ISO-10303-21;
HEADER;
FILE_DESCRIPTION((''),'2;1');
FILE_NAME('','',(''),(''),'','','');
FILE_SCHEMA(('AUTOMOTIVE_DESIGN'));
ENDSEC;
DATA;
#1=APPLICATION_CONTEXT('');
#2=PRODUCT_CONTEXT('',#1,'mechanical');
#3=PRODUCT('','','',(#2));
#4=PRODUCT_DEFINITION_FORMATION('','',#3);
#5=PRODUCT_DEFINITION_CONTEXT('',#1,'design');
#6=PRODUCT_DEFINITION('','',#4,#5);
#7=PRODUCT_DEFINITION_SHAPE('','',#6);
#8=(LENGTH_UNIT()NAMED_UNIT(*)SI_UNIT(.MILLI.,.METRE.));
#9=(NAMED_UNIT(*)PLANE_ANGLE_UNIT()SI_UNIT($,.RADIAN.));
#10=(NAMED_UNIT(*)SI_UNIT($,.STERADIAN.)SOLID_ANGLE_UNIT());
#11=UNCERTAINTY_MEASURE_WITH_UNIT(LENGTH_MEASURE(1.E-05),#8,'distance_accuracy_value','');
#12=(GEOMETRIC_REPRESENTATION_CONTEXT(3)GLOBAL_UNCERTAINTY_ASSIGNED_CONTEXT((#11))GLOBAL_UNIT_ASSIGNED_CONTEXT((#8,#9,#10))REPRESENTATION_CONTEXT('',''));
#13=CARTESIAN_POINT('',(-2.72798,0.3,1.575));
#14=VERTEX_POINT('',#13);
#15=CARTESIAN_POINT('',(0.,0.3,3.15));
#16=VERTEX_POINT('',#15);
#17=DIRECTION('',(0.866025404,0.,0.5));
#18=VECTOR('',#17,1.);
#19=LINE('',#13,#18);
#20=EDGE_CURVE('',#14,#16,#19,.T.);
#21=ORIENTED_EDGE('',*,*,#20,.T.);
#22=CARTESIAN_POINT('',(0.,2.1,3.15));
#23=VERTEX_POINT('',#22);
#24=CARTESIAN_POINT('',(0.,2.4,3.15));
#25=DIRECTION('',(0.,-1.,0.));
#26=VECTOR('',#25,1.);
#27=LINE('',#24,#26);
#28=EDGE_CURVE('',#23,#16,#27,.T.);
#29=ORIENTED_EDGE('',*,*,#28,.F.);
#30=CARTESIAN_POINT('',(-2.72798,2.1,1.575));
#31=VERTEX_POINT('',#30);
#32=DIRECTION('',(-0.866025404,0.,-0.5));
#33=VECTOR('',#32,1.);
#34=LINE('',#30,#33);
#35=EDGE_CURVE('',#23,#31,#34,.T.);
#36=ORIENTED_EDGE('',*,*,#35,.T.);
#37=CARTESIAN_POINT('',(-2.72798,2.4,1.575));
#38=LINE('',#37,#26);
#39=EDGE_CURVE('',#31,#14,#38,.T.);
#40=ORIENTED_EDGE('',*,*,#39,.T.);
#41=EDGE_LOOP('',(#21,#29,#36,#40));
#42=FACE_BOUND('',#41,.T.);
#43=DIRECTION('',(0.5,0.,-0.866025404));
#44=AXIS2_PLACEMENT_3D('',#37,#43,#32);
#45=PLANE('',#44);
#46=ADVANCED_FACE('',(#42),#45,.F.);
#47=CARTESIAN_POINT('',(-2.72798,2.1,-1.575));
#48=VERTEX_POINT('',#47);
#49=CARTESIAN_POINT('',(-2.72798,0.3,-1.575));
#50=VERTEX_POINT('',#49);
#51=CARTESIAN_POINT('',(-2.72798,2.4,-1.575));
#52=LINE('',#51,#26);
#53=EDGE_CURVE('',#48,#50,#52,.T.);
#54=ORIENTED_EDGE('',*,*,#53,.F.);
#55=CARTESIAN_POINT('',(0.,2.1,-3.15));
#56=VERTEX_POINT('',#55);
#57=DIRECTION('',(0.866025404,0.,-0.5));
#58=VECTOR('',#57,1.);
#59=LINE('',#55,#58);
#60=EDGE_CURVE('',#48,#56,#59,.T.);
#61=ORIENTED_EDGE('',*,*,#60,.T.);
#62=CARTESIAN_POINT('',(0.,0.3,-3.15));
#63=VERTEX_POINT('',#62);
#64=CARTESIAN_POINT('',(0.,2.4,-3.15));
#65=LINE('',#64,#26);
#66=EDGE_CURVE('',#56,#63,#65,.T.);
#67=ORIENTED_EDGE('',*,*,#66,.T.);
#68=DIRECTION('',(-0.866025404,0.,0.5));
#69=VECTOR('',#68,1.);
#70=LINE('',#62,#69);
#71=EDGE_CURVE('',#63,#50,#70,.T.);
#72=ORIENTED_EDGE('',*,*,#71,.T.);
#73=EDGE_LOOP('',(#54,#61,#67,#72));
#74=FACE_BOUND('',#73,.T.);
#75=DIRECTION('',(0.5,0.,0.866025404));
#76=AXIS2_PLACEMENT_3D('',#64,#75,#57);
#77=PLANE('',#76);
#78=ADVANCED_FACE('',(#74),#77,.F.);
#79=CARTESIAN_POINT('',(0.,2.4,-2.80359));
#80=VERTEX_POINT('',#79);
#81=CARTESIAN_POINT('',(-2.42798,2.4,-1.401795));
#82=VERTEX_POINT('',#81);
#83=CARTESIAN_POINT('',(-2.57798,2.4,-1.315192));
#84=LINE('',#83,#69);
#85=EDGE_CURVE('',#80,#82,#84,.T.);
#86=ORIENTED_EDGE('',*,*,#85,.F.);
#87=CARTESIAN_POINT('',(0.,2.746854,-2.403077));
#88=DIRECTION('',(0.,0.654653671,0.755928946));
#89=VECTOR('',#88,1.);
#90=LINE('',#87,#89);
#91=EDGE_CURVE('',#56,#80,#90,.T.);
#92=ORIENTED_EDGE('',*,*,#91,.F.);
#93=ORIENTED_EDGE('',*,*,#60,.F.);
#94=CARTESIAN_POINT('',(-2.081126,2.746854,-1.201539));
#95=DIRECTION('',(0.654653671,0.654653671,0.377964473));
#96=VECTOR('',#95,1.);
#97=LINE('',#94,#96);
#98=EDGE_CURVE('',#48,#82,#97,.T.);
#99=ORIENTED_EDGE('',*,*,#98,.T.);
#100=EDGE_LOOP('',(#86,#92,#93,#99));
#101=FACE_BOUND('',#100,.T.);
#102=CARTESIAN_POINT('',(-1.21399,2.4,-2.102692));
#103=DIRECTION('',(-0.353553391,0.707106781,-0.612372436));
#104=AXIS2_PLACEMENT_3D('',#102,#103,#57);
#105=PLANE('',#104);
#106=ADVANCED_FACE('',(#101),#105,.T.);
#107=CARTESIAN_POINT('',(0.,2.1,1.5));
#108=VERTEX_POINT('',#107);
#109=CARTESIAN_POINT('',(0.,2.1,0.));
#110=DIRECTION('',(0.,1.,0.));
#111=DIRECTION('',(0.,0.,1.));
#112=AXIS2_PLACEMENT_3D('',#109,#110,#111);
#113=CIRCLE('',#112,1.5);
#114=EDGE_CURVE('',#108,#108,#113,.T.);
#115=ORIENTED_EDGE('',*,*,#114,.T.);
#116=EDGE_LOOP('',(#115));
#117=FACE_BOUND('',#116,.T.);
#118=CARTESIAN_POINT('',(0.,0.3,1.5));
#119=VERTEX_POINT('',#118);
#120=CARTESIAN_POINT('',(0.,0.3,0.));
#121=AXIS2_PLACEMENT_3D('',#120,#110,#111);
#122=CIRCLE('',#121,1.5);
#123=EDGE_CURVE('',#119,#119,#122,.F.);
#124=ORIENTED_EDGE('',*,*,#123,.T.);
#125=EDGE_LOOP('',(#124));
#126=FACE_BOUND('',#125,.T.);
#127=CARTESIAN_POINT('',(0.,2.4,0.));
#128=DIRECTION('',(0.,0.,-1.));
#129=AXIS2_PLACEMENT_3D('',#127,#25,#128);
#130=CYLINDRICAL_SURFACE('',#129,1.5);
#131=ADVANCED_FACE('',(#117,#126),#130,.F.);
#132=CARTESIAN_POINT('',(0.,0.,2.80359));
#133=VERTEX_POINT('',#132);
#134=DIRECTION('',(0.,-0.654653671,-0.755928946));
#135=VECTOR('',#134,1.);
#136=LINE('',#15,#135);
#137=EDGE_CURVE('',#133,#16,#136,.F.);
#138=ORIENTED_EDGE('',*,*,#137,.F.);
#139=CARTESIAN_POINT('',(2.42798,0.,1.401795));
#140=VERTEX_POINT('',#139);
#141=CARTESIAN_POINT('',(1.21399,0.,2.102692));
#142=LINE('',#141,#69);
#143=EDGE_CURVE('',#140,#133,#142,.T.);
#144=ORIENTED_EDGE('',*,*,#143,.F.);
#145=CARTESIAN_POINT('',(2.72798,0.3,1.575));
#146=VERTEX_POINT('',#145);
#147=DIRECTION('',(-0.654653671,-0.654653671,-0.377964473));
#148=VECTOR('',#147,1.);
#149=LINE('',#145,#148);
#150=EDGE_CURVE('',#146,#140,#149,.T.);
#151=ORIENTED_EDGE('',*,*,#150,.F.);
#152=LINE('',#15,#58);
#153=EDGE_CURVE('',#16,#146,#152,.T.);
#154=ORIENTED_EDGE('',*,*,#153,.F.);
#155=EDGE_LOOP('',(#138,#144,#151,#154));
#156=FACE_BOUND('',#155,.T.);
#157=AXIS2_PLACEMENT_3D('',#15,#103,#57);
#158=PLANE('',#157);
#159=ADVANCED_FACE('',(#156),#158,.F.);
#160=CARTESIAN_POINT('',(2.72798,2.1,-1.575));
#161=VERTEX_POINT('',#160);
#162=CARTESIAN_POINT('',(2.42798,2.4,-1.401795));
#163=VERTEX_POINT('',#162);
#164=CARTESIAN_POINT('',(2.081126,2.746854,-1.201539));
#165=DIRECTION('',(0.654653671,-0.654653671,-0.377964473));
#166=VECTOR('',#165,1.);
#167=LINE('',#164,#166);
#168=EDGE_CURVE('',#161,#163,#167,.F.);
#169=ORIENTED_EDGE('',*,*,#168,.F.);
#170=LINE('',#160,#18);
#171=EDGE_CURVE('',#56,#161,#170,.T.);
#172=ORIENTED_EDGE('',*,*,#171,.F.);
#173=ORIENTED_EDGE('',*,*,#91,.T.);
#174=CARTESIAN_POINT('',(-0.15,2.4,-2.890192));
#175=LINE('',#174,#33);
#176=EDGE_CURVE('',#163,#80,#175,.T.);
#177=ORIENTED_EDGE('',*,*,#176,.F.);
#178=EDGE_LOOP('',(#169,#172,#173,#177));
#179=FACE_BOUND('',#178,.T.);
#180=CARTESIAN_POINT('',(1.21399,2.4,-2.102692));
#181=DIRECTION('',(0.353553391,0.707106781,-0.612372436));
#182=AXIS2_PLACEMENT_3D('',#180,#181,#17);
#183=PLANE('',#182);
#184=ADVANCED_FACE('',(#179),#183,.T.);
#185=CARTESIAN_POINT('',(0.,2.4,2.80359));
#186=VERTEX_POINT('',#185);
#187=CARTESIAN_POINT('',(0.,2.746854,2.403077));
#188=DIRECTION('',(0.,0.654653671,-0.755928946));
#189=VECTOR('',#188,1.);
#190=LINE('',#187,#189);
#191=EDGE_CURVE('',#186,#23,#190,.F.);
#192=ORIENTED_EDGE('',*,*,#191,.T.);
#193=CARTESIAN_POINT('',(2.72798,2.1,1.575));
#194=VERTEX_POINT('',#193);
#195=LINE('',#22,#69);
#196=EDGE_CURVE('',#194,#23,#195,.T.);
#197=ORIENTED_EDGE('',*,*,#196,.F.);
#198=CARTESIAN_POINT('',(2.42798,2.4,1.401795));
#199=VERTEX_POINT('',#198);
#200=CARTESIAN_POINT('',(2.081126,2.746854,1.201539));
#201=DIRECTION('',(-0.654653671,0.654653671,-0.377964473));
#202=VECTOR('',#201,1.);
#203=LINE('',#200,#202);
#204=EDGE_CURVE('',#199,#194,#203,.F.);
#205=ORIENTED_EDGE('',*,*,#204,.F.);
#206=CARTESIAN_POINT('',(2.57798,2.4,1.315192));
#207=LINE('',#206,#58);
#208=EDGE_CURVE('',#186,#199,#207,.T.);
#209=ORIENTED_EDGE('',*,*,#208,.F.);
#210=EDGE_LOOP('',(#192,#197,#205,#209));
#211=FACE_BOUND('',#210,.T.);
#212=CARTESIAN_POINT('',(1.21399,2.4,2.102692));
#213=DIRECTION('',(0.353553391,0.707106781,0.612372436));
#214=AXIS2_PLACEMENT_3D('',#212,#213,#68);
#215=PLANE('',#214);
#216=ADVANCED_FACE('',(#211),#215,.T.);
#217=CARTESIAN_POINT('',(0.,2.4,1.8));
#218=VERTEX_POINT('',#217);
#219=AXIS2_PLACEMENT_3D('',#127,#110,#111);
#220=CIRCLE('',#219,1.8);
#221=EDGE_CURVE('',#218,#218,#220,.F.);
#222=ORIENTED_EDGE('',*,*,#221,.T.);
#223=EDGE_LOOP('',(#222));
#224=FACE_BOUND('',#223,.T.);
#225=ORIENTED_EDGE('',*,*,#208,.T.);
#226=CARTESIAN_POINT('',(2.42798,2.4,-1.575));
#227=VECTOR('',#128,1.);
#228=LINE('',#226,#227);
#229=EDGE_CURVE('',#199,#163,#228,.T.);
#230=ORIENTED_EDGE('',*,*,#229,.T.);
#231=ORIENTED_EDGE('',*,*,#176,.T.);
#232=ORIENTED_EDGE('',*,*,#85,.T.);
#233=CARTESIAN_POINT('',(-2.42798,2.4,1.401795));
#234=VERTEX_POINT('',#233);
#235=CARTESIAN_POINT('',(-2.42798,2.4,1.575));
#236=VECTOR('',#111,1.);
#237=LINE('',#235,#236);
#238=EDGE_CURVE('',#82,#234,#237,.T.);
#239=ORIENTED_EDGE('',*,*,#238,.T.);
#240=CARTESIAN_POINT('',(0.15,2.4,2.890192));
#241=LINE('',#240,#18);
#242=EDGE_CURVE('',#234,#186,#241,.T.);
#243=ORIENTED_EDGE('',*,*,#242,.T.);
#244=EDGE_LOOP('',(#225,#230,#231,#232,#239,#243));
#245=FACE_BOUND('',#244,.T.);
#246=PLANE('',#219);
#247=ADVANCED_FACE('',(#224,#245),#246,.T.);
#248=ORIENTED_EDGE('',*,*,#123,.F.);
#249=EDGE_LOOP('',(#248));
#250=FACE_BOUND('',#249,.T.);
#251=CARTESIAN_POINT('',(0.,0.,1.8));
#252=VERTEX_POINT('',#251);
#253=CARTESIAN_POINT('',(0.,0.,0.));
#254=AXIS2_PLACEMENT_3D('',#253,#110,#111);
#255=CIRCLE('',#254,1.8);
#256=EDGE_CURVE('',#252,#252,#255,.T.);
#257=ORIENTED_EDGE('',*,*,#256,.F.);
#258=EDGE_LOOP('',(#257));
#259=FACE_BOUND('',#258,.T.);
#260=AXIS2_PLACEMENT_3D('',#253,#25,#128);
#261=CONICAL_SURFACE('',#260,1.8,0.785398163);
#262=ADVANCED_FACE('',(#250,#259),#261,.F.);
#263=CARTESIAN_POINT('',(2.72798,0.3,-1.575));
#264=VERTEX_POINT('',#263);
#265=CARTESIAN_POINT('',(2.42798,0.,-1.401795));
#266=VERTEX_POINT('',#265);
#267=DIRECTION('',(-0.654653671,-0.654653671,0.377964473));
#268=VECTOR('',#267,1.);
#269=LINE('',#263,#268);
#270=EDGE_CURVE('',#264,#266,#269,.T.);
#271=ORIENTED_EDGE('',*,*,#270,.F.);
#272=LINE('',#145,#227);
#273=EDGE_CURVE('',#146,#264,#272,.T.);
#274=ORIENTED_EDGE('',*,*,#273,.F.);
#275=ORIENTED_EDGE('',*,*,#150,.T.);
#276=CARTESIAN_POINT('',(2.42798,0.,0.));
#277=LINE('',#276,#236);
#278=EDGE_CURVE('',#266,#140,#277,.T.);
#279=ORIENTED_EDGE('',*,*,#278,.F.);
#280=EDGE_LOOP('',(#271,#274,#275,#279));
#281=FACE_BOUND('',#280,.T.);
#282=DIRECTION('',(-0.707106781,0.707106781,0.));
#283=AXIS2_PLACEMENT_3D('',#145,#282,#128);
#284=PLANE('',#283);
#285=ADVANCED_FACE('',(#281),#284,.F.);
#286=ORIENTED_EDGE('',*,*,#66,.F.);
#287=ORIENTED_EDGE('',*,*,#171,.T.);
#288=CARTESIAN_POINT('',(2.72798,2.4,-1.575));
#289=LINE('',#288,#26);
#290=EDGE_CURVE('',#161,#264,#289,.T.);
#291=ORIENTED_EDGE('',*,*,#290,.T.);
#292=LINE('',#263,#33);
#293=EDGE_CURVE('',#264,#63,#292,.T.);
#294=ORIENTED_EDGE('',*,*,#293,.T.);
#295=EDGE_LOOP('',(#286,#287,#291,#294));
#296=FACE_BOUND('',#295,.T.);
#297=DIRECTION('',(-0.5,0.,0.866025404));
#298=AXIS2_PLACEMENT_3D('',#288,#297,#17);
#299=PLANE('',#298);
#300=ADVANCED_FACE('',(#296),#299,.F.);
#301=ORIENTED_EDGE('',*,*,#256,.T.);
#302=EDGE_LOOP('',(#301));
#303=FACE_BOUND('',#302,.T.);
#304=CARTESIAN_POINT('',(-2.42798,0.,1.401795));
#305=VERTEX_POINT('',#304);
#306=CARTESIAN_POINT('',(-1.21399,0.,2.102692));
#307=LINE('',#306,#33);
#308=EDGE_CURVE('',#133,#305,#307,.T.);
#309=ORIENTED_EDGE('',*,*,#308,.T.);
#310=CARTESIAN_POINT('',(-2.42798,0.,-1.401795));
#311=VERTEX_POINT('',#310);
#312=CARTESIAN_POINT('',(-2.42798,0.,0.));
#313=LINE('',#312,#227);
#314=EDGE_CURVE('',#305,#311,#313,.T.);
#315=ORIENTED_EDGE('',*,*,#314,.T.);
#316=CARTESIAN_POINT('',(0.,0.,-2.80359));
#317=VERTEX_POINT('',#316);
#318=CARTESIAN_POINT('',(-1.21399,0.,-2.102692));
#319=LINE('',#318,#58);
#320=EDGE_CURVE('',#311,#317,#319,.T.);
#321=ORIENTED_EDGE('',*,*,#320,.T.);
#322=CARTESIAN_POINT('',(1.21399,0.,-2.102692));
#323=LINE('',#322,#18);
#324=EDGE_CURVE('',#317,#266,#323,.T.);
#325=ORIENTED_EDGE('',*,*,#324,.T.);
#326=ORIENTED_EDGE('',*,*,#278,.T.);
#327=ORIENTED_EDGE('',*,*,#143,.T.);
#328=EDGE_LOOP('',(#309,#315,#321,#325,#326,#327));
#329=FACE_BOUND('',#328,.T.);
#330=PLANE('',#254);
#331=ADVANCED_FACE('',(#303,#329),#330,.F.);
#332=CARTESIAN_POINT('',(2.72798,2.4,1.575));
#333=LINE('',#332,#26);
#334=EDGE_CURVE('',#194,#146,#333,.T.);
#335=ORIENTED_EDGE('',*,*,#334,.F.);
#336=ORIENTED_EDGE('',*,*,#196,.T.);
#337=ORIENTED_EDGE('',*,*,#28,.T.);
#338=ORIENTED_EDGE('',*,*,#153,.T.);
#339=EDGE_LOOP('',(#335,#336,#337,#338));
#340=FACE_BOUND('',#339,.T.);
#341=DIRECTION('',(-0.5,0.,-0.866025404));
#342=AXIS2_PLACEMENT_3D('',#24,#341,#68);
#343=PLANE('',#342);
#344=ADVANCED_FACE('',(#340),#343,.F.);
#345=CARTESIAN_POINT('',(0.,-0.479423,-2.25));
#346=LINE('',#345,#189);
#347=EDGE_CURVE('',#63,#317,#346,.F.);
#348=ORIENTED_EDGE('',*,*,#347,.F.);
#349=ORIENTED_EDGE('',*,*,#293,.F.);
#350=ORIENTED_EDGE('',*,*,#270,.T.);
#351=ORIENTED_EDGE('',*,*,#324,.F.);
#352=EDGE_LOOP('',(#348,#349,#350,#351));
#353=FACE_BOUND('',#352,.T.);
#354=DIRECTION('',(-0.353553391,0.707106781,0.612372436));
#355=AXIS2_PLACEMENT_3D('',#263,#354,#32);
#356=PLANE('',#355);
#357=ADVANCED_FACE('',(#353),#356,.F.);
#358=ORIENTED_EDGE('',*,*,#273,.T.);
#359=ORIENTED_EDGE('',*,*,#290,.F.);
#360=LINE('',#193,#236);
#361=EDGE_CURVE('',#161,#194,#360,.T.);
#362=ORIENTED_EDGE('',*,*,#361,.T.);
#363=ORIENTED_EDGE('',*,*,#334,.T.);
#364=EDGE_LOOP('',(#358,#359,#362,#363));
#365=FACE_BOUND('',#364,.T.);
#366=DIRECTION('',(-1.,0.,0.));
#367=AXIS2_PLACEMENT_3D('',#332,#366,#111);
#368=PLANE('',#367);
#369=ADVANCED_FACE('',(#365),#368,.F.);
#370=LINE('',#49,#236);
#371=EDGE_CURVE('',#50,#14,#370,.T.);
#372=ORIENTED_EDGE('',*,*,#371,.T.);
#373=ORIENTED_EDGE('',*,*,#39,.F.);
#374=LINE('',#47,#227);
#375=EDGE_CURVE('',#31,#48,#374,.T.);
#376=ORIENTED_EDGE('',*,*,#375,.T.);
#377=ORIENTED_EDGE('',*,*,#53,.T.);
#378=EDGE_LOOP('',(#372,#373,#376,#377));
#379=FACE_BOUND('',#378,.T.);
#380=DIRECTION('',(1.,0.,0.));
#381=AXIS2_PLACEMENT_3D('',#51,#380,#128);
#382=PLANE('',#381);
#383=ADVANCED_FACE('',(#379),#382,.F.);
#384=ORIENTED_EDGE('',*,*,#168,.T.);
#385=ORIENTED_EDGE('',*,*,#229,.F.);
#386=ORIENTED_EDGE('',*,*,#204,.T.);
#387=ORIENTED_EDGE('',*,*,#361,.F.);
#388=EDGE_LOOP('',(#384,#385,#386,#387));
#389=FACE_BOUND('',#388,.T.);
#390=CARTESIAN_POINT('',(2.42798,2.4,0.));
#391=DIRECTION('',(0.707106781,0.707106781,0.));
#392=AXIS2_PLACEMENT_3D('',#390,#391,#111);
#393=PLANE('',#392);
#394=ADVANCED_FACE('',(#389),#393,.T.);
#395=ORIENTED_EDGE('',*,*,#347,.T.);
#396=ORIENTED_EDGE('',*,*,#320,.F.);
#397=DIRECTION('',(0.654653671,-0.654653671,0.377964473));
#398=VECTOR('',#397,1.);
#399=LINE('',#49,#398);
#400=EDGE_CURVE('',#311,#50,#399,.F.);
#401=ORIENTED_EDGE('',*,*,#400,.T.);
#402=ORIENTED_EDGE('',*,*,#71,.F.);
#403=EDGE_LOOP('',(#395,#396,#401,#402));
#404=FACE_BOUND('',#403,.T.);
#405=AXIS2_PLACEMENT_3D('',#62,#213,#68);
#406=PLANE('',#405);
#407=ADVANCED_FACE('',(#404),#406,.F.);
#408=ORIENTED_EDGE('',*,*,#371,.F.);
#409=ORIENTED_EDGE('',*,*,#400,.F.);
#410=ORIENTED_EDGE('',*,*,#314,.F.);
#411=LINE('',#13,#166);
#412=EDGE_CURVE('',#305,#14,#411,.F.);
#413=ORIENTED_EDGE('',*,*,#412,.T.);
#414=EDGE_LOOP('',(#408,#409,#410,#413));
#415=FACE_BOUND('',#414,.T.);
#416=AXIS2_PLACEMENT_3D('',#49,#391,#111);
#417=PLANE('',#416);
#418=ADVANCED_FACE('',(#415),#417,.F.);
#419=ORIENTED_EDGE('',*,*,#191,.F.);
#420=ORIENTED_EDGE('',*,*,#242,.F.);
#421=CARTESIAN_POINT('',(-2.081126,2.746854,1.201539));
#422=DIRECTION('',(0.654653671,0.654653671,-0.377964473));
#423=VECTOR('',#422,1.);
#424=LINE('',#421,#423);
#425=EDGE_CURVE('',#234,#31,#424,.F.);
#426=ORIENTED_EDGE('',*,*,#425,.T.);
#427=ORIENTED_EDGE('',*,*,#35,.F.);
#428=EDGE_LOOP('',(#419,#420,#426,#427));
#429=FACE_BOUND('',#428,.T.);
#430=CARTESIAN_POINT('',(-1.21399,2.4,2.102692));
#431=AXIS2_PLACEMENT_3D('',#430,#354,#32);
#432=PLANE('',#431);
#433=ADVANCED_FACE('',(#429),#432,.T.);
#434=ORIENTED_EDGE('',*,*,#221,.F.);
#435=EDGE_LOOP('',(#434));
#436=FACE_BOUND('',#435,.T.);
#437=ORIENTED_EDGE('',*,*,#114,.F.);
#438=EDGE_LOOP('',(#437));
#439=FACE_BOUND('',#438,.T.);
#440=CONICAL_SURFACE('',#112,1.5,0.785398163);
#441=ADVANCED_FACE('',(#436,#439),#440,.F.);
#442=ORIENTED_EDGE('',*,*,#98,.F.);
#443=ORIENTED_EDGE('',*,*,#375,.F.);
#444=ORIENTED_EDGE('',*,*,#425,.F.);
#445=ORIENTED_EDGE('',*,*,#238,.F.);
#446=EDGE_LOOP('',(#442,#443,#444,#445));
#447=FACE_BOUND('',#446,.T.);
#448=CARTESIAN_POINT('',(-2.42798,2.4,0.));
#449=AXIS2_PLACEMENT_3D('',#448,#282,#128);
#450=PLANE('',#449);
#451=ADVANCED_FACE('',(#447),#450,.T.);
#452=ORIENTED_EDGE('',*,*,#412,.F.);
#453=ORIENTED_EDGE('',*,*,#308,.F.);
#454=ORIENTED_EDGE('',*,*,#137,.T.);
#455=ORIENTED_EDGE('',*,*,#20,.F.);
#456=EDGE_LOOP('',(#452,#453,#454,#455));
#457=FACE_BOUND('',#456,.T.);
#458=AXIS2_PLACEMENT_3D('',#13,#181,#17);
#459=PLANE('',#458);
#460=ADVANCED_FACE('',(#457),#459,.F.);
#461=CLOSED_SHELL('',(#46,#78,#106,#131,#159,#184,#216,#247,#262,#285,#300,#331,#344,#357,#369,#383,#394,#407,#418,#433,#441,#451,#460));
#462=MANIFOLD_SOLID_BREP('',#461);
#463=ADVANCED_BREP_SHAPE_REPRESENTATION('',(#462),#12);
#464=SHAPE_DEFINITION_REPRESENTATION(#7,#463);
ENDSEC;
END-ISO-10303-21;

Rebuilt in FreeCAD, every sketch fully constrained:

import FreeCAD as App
import Part
import Sketcher

V = App.Vector
Q = App.Units.Quantity


def edges_at(feature, points):
    """Names of the edges that pass closest to the given points."""
    edges = feature.Shape.Edges
    near = lambda p: min(range(len(edges)), key=lambda i: edges[i].distToShape(Part.Vertex(*p))[0])
    return sorted({f"Edge{near(p) + 1}" for p in points})


def add_polygon(sketch, points):
    """Adds a closed chain of lines whose ends are joined by coincident constraints."""
    first, n = sketch.GeometryCount, len(points)
    for a, b in zip(points, points[1:] + points[:1]):
        sketch.addGeometry(Part.LineSegment(App.Vector(*a, 0), App.Vector(*b, 0)), False)
    for i in range(n):
        sketch.addConstraint(Sketcher.Constraint("Coincident", first + i, 2, first + (i + 1) % n, 1))

doc = App.newDocument("Part")
body = doc.addObject("PartDesign::Body", "Body")

sketch1 = body.newObject("Sketcher::SketchObject", "Sketch")
sketch1.AttachmentSupport = (doc.getObject("XZ_Plane"), [""])
sketch1.MapMode = "FlatFace"
add_polygon(sketch1, [(0, -3.15), (-2.72798, -1.575), (-2.72798, 1.575), (0, 3.15), (2.72798, 1.575), (2.72798, -1.575)])
sketch1.addGeometry(Part.Circle(V(0, 0, 0), V(0, 0, 1), 1.5), False)
sketch1.addConstraint([
    Sketcher.Constraint("Vertical", 1),
    Sketcher.Constraint("Vertical", 4),
    Sketcher.Constraint("Coincident", 6, 3, -1, 1),
    Sketcher.Constraint("Symmetric", 0, 2, 3, 2, -1, 1),
    Sketcher.Constraint("Symmetric", 2, 2, 5, 2, -1, 1),
    Sketcher.Constraint("PointOnObject", 2, 2, -2),
    Sketcher.Constraint("Parallel", 2, 5),
    Sketcher.Constraint("Horizontal", 1, 2, 3, 2),
    Sketcher.Constraint("Diameter", 6, 3.0),
    Sketcher.Constraint("Angle", 0, Q("150 deg")),
    Sketcher.Constraint("DistanceY", 1, 1, 1, 2, 3.15),
    Sketcher.Constraint("Distance", 0, 3.15),
])
pad1 = body.newObject("PartDesign::Pad", "Pad")
pad1.Profile = sketch1
pad1.Length = 2.4
pad1.Reversed = True
doc.recompute()

chamfer = body.newObject("PartDesign::Chamfer", "Chamfer")
chamfer.Base = (pad1, edges_at(pad1, [
    (-2.728, 2.4, 0),
    (-1.364, 2.4, 2.362),
    (0, 0, -1.5),
    (0, 2.4, -1.5),
    (1.364, 2.4, 2.362),
    (2.728, 2.4, 0),
    (1.364, 2.4, -2.362),
    (2.728, 0, 0),
    (1.364, 0, 2.362),
    (-1.364, 0, 2.362),
    (-2.728, 0, 0),
    (-1.364, 0, -2.362),
    (1.364, 0, -2.362),
    (-1.364, 2.4, -2.362),
]))
chamfer.Size = 0.3

doc.recompute()
